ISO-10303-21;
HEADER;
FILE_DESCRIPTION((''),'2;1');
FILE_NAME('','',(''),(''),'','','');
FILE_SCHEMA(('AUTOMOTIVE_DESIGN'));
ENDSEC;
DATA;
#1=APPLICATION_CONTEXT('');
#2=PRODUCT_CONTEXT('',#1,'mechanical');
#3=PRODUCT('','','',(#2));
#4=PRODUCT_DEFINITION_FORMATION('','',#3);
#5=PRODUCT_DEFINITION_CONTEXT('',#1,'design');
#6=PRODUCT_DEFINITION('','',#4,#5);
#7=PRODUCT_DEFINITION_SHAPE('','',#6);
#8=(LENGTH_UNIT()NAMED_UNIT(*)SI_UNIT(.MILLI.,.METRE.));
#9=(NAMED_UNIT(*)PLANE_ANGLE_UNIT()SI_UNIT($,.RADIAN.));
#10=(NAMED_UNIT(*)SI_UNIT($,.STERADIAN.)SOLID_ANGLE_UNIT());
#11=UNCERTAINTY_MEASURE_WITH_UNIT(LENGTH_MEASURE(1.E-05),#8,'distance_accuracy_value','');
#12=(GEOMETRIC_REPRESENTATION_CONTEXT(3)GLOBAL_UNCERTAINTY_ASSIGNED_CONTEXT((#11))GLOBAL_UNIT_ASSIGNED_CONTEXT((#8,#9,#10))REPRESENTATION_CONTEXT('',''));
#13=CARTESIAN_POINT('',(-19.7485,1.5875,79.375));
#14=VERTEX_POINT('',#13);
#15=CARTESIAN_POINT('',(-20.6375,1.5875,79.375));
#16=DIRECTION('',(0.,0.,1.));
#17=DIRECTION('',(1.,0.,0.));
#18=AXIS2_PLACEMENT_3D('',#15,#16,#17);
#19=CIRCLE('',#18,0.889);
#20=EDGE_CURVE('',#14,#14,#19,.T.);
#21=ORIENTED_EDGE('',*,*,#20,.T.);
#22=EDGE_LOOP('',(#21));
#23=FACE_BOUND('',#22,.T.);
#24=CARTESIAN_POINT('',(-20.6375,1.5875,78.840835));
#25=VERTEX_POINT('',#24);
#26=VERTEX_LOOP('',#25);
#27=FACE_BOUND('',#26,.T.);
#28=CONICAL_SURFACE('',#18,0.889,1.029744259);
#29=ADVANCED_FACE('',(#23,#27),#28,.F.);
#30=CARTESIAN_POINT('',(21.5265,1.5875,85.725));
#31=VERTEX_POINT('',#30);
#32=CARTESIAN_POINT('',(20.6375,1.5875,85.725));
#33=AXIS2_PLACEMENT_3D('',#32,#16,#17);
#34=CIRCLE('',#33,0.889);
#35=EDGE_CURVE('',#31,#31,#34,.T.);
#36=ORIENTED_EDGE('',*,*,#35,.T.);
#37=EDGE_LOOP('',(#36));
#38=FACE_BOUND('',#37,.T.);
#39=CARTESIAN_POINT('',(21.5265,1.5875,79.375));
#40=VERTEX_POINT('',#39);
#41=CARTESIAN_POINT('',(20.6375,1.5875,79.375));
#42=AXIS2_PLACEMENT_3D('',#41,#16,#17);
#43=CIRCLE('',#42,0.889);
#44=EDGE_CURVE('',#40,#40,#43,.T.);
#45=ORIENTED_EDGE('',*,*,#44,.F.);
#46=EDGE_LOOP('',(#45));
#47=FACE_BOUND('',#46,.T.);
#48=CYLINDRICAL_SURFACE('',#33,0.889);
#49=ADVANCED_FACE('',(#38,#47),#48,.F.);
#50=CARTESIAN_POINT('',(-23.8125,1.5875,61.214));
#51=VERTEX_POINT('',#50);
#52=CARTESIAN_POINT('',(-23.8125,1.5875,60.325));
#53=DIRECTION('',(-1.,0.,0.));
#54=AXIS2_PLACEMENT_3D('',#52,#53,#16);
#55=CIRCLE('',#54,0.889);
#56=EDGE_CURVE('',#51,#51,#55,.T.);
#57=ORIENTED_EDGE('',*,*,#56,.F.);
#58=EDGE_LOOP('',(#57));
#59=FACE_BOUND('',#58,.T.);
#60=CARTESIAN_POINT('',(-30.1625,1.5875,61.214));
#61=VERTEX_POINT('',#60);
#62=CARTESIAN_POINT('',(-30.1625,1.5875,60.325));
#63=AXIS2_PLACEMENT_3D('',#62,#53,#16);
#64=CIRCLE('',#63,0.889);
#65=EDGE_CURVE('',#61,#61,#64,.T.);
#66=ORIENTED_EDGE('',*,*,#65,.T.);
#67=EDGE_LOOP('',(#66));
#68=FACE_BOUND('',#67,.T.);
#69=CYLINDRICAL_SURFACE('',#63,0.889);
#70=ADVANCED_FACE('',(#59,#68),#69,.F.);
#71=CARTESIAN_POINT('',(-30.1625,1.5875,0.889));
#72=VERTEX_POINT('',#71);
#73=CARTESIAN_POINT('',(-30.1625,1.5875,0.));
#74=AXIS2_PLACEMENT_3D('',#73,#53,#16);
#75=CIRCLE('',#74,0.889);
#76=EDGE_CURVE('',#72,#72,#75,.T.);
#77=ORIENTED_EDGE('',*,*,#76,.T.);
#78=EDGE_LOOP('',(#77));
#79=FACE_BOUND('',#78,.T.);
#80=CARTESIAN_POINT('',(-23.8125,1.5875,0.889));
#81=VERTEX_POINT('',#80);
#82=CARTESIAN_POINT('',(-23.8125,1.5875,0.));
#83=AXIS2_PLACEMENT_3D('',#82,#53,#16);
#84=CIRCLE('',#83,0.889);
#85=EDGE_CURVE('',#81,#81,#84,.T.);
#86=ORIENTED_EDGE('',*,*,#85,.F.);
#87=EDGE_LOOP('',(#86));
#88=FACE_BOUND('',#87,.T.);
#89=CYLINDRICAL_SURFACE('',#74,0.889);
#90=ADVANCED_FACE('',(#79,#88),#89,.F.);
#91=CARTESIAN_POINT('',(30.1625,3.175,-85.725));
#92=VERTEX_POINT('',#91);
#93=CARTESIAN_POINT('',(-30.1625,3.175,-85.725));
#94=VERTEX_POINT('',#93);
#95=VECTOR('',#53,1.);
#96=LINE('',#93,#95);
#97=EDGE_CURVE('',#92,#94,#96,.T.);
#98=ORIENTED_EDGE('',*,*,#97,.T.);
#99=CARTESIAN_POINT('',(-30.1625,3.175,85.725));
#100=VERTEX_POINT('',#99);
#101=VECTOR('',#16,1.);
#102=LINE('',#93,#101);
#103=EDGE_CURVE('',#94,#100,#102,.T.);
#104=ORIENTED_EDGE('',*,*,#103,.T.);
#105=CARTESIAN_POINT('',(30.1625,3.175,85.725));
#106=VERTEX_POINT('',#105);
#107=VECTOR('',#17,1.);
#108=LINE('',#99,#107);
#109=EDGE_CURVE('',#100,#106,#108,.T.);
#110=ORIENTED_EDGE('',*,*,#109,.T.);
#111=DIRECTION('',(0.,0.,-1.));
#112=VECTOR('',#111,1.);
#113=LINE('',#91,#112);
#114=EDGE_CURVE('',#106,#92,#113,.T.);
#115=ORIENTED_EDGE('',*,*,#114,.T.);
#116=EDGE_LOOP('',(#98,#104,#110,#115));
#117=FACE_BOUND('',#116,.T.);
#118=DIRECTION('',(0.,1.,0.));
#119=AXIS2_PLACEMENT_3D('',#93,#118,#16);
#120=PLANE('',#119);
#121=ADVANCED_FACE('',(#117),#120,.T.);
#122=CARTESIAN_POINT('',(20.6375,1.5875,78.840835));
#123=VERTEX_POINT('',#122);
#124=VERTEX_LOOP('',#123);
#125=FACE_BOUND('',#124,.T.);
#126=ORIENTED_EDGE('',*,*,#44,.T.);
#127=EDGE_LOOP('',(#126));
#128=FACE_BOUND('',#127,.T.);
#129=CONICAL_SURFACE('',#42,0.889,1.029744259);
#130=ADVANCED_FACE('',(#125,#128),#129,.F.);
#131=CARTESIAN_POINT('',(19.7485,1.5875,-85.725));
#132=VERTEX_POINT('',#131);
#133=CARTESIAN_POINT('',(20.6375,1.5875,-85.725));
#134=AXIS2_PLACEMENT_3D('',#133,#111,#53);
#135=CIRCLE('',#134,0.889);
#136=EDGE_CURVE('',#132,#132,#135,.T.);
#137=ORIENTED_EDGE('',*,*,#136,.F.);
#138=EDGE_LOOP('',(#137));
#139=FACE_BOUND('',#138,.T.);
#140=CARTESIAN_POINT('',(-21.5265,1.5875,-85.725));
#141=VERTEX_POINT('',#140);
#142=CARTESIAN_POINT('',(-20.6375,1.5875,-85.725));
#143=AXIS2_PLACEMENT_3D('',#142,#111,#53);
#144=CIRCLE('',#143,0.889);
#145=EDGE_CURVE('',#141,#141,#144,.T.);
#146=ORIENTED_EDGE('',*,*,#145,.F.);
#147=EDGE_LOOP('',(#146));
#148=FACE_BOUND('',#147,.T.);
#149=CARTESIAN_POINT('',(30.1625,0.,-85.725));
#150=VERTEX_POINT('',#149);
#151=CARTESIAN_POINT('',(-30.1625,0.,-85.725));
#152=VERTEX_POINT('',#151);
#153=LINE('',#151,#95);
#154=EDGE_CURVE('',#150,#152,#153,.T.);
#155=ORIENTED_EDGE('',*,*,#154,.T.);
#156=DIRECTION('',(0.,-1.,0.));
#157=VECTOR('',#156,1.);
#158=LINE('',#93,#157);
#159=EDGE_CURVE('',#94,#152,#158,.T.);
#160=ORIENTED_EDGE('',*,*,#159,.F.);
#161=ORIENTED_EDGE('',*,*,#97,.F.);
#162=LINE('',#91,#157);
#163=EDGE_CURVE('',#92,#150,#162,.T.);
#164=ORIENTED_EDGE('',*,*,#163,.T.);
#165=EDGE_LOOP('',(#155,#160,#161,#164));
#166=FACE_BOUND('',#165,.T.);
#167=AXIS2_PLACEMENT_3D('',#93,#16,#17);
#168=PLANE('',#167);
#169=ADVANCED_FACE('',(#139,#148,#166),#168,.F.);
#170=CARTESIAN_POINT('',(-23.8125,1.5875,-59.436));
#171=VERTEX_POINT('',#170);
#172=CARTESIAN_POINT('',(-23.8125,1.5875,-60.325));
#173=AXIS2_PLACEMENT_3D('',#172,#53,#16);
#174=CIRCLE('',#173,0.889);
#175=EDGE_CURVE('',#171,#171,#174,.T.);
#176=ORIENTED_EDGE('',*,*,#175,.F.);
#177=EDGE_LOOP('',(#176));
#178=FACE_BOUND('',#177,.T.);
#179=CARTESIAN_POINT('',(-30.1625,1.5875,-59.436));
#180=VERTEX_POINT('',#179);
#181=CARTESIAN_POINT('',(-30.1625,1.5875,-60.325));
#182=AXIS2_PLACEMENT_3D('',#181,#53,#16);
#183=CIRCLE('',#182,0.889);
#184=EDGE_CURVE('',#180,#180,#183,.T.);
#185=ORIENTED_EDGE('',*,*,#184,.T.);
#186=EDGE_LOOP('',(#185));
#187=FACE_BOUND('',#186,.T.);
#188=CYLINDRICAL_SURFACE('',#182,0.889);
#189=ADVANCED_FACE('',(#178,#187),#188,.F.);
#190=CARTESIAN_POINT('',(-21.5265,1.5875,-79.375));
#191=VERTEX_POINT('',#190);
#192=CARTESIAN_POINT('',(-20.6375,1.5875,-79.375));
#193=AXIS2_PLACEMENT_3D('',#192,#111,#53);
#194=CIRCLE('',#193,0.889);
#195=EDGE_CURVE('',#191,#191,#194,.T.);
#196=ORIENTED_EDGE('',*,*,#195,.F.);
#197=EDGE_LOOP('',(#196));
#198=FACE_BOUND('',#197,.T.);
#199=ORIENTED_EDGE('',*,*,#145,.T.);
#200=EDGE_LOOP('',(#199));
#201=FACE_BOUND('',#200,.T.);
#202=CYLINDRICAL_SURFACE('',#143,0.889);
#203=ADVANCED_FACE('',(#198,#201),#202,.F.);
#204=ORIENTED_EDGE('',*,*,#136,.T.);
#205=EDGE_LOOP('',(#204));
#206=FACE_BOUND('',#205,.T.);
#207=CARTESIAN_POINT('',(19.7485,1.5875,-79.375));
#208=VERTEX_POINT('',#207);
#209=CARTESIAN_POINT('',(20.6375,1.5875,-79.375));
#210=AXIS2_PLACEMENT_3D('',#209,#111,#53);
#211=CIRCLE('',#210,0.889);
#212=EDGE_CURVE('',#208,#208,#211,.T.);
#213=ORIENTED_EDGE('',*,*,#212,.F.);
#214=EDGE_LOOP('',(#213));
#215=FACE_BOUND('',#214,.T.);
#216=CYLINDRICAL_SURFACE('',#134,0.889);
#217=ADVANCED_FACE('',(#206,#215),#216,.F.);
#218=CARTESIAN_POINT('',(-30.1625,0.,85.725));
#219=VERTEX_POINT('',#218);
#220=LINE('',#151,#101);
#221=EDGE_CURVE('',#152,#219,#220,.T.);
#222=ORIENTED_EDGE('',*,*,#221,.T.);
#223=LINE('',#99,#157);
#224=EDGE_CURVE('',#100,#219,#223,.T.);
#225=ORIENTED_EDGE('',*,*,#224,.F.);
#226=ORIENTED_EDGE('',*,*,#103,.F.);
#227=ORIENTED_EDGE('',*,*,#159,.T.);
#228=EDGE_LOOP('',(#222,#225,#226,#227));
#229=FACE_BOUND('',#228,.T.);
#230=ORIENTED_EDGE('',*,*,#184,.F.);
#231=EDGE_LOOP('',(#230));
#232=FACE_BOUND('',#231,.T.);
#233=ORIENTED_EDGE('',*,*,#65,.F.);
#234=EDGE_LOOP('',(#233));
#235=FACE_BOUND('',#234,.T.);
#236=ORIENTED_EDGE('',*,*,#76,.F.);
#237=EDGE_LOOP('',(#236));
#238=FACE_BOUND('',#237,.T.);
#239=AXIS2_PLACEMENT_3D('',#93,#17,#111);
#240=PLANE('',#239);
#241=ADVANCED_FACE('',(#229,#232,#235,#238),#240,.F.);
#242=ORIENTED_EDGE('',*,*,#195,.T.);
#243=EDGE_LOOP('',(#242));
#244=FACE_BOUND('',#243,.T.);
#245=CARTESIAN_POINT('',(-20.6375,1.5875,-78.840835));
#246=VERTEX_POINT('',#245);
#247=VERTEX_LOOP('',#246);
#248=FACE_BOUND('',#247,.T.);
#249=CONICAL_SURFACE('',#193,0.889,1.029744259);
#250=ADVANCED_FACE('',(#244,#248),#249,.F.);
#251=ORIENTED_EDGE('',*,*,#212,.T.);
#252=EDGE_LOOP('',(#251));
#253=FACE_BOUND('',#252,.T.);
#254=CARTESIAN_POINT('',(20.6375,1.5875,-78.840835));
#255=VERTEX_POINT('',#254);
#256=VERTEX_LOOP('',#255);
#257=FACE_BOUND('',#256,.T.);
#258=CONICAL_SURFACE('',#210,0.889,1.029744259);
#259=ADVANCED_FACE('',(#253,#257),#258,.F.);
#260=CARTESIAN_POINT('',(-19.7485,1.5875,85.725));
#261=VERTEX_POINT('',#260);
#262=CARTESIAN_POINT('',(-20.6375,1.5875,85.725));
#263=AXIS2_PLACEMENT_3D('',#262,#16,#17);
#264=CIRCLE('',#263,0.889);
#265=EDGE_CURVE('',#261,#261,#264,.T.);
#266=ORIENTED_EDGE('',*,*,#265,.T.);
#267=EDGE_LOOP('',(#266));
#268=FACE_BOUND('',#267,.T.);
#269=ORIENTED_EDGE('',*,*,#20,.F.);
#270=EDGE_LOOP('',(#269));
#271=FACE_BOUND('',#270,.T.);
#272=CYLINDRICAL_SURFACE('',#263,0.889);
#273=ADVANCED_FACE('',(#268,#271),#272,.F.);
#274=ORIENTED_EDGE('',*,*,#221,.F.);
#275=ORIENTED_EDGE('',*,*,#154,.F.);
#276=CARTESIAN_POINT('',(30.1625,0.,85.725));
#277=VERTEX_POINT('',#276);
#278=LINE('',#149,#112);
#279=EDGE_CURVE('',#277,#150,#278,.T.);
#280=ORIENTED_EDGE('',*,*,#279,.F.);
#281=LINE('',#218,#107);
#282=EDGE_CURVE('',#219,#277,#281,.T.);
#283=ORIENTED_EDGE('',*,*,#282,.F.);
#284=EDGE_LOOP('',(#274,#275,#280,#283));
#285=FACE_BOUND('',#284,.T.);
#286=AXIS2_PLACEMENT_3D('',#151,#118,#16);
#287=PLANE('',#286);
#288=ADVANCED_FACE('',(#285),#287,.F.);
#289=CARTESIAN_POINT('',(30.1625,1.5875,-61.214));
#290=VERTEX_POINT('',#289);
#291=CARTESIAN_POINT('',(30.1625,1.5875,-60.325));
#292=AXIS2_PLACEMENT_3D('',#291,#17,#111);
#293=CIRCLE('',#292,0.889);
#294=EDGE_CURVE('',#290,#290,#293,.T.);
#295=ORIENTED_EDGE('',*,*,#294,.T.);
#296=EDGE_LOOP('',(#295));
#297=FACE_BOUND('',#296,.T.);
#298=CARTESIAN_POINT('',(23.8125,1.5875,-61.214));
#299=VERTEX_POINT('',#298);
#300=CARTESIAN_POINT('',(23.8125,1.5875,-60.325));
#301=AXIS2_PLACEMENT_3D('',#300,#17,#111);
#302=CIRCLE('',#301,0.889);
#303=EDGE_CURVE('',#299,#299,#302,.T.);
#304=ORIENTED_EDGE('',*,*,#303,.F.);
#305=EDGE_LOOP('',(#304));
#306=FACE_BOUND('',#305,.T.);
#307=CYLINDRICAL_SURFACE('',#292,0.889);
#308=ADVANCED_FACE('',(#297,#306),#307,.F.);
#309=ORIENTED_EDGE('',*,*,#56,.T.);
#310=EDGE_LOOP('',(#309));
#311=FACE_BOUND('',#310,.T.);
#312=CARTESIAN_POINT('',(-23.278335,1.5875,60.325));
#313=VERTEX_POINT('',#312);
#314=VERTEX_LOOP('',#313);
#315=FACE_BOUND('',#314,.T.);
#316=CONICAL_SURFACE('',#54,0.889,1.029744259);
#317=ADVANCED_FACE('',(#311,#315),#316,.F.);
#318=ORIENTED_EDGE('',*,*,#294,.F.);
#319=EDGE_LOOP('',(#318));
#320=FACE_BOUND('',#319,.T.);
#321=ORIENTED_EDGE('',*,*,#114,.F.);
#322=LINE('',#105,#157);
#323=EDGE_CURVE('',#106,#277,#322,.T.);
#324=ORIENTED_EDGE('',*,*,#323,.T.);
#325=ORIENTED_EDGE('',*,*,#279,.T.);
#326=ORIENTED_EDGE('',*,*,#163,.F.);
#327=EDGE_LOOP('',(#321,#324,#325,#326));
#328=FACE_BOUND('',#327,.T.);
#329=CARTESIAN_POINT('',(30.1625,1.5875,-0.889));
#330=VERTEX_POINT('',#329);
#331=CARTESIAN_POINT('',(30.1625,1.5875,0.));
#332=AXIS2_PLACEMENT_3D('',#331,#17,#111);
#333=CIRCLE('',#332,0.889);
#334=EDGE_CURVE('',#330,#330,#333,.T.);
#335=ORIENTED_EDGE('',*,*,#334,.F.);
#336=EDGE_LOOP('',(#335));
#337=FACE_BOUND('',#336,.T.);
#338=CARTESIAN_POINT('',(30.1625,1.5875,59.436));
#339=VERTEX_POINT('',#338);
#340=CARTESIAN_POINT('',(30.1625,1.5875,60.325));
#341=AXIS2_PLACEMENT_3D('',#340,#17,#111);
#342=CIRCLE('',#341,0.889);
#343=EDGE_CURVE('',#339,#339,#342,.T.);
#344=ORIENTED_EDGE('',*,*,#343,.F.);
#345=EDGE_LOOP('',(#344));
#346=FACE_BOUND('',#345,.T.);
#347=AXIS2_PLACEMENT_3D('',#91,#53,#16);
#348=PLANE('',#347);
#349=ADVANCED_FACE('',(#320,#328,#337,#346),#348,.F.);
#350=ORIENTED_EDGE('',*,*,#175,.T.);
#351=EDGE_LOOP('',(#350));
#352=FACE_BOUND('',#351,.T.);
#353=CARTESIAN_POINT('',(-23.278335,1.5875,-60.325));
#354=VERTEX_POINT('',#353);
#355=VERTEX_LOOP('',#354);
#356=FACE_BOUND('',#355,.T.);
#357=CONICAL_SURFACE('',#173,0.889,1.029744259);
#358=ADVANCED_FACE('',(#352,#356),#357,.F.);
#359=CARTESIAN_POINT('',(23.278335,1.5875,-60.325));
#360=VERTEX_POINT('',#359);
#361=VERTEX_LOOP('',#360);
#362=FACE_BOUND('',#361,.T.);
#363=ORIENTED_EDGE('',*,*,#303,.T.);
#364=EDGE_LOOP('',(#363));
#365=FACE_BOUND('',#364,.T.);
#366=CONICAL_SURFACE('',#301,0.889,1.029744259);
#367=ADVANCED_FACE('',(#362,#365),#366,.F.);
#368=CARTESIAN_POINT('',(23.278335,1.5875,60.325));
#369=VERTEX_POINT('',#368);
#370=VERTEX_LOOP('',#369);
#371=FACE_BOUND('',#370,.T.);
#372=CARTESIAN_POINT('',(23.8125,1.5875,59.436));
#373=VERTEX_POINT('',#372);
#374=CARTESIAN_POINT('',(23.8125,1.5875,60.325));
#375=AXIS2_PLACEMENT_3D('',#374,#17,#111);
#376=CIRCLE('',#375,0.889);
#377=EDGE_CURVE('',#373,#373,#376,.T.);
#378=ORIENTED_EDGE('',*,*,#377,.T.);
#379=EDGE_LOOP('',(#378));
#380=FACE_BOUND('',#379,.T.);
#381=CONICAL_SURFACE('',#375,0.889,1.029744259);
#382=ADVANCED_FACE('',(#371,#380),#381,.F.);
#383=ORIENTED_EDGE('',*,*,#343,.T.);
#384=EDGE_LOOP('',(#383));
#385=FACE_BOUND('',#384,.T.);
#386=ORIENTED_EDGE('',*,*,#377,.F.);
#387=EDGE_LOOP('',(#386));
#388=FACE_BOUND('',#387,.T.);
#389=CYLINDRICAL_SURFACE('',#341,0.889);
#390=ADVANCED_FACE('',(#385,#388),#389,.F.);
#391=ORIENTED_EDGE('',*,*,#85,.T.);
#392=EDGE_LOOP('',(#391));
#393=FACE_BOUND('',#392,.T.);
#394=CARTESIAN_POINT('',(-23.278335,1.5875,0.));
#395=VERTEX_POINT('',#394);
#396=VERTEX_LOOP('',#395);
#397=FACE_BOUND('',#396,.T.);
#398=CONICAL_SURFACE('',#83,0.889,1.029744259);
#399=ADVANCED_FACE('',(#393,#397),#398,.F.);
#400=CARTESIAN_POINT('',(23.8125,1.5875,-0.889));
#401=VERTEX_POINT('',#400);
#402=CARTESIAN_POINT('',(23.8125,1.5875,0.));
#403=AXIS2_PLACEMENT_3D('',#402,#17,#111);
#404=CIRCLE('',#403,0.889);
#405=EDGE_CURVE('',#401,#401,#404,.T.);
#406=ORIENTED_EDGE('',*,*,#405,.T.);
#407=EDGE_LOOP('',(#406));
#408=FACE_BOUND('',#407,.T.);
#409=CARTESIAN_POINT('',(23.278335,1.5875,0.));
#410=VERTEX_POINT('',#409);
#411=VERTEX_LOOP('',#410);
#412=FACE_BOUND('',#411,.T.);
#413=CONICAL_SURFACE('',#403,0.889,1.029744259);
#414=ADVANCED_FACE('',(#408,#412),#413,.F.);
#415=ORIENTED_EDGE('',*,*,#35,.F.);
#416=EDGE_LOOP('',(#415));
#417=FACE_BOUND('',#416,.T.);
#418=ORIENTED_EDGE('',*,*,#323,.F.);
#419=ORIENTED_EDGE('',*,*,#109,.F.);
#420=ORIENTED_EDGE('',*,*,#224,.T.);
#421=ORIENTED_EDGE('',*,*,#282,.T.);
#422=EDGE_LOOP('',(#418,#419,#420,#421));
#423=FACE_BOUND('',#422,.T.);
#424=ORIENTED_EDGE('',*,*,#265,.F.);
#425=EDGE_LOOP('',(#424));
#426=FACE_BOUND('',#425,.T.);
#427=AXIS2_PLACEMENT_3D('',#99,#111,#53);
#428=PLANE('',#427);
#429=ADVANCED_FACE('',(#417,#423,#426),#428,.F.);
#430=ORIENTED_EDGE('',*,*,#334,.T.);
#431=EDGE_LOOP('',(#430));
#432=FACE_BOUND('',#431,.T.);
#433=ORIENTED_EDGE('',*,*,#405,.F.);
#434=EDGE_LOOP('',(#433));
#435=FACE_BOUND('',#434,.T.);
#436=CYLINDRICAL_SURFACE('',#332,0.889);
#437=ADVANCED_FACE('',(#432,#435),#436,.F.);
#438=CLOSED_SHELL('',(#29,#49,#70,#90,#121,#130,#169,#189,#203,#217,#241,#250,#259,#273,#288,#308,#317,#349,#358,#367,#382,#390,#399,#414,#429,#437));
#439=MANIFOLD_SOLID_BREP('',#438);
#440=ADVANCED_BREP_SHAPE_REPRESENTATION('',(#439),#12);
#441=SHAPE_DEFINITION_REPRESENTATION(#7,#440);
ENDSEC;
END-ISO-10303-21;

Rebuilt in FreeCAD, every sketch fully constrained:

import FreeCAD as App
import Part
import Sketcher
from FreeCAD import Vector
Q = App.Units.Quantity

doc = App.newDocument("Part")
body = doc.addObject("PartDesign::Body", "Body")

sketch1 = body.newObject("Sketcher::SketchObject", "Sketch")
sketch1.AttachmentSupport = (doc.getObject("XZ_Plane"), [""])
sketch1.MapMode = "FlatFace"
sketch1.addGeometry(Part.LineSegment(Vector(-30, -86, 0), Vector(-30, 86, 0)), False)
sketch1.addGeometry(Part.LineSegment(Vector(-30, 86, 0), Vector(30, 86, 0)), False)
sketch1.addGeometry(Part.LineSegment(Vector(30, 86, 0), Vector(30, -86, 0)), False)
sketch1.addGeometry(Part.LineSegment(Vector(30, -86, 0), Vector(-30, -86, 0)), False)
sketch1.addConstraint(Sketcher.Constraint("Coincident", 0, 2, 1, 1))
sketch1.addConstraint(Sketcher.Constraint("Coincident", 1, 2, 2, 1))
sketch1.addConstraint(Sketcher.Constraint("Coincident", 2, 2, 3, 1))
sketch1.addConstraint(Sketcher.Constraint("Coincident", 3, 2, 0, 1))
sketch1.addConstraint(Sketcher.Constraint("Vertical", 0))
sketch1.addConstraint(Sketcher.Constraint("Horizontal", 1))
sketch1.addConstraint(Sketcher.Constraint("Vertical", 2))
sketch1.addConstraint(Sketcher.Constraint("Horizontal", 3))
sketch1.addConstraint(Sketcher.Constraint("Symmetric", 0, 2, 2, 2, -1, 1))
sketch1.addConstraint(Sketcher.Constraint("DistanceY", 0, 1, 0, 2, Q("6.75 in")))
sketch1.addConstraint(Sketcher.Constraint("DistanceX", 1, 1, 1, 2, Q("2.375 in")))
pad1 = body.newObject("PartDesign::Pad", "Pad")
pad1.Profile = sketch1
pad1.Length = Q("0.125 in")
pad1.Reversed = True

sketch2 = body.newObject("Sketcher::SketchObject", "Sketch001")
sketch2.AttachmentSupport = (doc.getObject("XY_Plane"), [""])
sketch2.MapMode = "FlatFace"
sketch2.AttachmentOffset = App.Placement(Vector(0, 0, 3.375 * 25.4), App.Rotation())
sketch2.addGeometry(Part.Circle(Vector(-20.6, 1.6, 0), Vector(0, 0, 1), 0.9), False)
sketch2.addGeometry(Part.Circle(Vector(20.6, 1.6, 0), Vector(0, 0, 1), 0.9), False)
sketch2.addConstraint(Sketcher.Constraint("Equal", 0, 1))
sketch2.addConstraint(Sketcher.Constraint("Symmetric", 0, 3, 1, 3, -2))
sketch2.addConstraint(Sketcher.Constraint("Diameter", 0, Q("0.07 in")))
sketch2.addConstraint(Sketcher.Constraint("DistanceX", 0, 3, -1, 1, Q("0.8125 in")))
sketch2.addConstraint(Sketcher.Constraint("DistanceY", -1, 1, 0, 3, Q("0.0625 in")))
doc.recompute()
hole = body.newObject("PartDesign::Hole", "Hole")
hole.Profile = sketch2
hole.ThreadType = "None"
hole.Diameter = Q("0.07 in")
hole.DepthType = "Dimension"
hole.Depth = Q("0.25 in")
hole.DrillPoint = "Angled"
hole.DrillPointAngle = 118

sketch3 = body.newObject("Sketcher::SketchObject", "Sketch002")
sketch3.AttachmentSupport = (doc.getObject("XY_Plane"), [""])
sketch3.MapMode = "FlatFace"
sketch3.AttachmentOffset = App.Placement(Vector(0, 0, -3.375 * 25.4), App.Rotation())
sketch3.addGeometry(Part.Circle(Vector(20.6, 1.6, 0), Vector(0, 0, 1), 0.9), False)
sketch3.addGeometry(Part.Circle(Vector(-20.6, 1.6, 0), Vector(0, 0, 1), 0.9), False)
sketch3.addConstraint(Sketcher.Constraint("Equal", 0, 1))
sketch3.addConstraint(Sketcher.Constraint("Symmetric", 0, 3, 1, 3, -2))
sketch3.addConstraint(Sketcher.Constraint("Diameter", 0, Q("0.07 in")))
sketch3.addConstraint(Sketcher.Constraint("DistanceX", -1, 1, 0, 3, Q("0.8125 in")))
sketch3.addConstraint(Sketcher.Constraint("DistanceY", -1, 1, 0, 3, Q("0.0625 in")))
doc.recompute()
hole2 = body.newObject("PartDesign::Hole", "Hole001")
hole2.Profile = sketch3
hole2.ThreadType = "None"
hole2.Diameter = Q("0.07 in")
hole2.DepthType = "Dimension"
hole2.Depth = Q("0.25 in")
hole2.DrillPoint = "Angled"
hole2.DrillPointAngle = 118
hole2.Reversed = True

sketch4 = body.newObject("Sketcher::SketchObject", "Sketch003")
sketch4.AttachmentSupport = (doc.getObject("YZ_Plane"), [""])
sketch4.MapMode = "FlatFace"
sketch4.AttachmentOffset = App.Placement(Vector(0, 0, -1.1875 * 25.4), App.Rotation())
sketch4.addGeometry(Part.Circle(Vector(1.6, -60.3, 0), Vector(0, 0, 1), 0.9), False)
sketch4.addGeometry(Part.Circle(Vector(1.6, 60.3, 0), Vector(0, 0, 1), 0.9), False)
sketch4.addGeometry(Part.Circle(Vector(1.6, 0, 0), Vector(0, 0, 1), 0.9), False)
sketch4.addConstraint(Sketcher.Constraint("Equal", 0, 1))
sketch4.addConstraint(Sketcher.Constraint("Equal", 1, 2))
sketch4.addConstraint(Sketcher.Constraint("Symmetric", 0, 3, 1, 3, -1))
sketch4.addConstraint(Sketcher.Constraint("PointOnObject", 2, 3, -1))
sketch4.addConstraint(Sketcher.Constraint("Vertical", 1, 3, 2, 3))
sketch4.addConstraint(Sketcher.Constraint("Diameter", 0, Q("0.07 in")))
sketch4.addConstraint(Sketcher.Constraint("DistanceY", 0, 3, 1, 3, Q("4.75 in")))
sketch4.addConstraint(Sketcher.Constraint("DistanceX", -1, 1, 0, 3, Q("0.0625 in")))
doc.recompute()
hole3 = body.newObject("PartDesign::Hole", "Hole002")
hole3.Profile = sketch4
hole3.ThreadType = "None"
hole3.Diameter = Q("0.07 in")
hole3.DepthType = "Dimension"
hole3.Depth = Q("0.25 in")
hole3.DrillPoint = "Angled"
hole3.DrillPointAngle = 118
hole3.Reversed = True

sketch5 = body.newObject("Sketcher::SketchObject", "Sketch004")
sketch5.AttachmentSupport = (doc.getObject("YZ_Plane"), [""])
sketch5.MapMode = "FlatFace"
sketch5.AttachmentOffset = App.Placement(Vector(0, 0, 1.1875 * 25.4), App.Rotation())
sketch5.addGeometry(Part.Circle(Vector(1.6, -60.3, 0), Vector(0, 0, 1), 0.9), False)
sketch5.addGeometry(Part.Circle(Vector(1.6, 60.3, 0), Vector(0, 0, 1), 0.9), False)
sketch5.addGeometry(Part.Circle(Vector(1.6, 0, 0), Vector(0, 0, 1), 0.9), False)
sketch5.addConstraint(Sketcher.Constraint("Equal", 0, 1))
sketch5.addConstraint(Sketcher.Constraint("Equal", 1, 2))
sketch5.addConstraint(Sketcher.Constraint("Symmetric", 0, 3, 1, 3, -1))
sketch5.addConstraint(Sketcher.Constraint("PointOnObject", 2, 3, -1))
sketch5.addConstraint(Sketcher.Constraint("Vertical", 1, 3, 2, 3))
sketch5.addConstraint(Sketcher.Constraint("Diameter", 0, Q("0.07 in")))
sketch5.addConstraint(Sketcher.Constraint("DistanceY", 0, 3, 1, 3, Q("4.75 in")))
sketch5.addConstraint(Sketcher.Constraint("DistanceX", -1, 1, 0, 3, Q("0.0625 in")))
doc.recompute()
hole4 = body.newObject("PartDesign::Hole", "Hole003")
hole4.Profile = sketch5
hole4.ThreadType = "None"
hole4.Diameter = Q("0.07 in")
hole4.DepthType = "Dimension"
hole4.Depth = Q("0.25 in")
hole4.DrillPoint = "Angled"
hole4.DrillPointAngle = 118

doc.recompute()
